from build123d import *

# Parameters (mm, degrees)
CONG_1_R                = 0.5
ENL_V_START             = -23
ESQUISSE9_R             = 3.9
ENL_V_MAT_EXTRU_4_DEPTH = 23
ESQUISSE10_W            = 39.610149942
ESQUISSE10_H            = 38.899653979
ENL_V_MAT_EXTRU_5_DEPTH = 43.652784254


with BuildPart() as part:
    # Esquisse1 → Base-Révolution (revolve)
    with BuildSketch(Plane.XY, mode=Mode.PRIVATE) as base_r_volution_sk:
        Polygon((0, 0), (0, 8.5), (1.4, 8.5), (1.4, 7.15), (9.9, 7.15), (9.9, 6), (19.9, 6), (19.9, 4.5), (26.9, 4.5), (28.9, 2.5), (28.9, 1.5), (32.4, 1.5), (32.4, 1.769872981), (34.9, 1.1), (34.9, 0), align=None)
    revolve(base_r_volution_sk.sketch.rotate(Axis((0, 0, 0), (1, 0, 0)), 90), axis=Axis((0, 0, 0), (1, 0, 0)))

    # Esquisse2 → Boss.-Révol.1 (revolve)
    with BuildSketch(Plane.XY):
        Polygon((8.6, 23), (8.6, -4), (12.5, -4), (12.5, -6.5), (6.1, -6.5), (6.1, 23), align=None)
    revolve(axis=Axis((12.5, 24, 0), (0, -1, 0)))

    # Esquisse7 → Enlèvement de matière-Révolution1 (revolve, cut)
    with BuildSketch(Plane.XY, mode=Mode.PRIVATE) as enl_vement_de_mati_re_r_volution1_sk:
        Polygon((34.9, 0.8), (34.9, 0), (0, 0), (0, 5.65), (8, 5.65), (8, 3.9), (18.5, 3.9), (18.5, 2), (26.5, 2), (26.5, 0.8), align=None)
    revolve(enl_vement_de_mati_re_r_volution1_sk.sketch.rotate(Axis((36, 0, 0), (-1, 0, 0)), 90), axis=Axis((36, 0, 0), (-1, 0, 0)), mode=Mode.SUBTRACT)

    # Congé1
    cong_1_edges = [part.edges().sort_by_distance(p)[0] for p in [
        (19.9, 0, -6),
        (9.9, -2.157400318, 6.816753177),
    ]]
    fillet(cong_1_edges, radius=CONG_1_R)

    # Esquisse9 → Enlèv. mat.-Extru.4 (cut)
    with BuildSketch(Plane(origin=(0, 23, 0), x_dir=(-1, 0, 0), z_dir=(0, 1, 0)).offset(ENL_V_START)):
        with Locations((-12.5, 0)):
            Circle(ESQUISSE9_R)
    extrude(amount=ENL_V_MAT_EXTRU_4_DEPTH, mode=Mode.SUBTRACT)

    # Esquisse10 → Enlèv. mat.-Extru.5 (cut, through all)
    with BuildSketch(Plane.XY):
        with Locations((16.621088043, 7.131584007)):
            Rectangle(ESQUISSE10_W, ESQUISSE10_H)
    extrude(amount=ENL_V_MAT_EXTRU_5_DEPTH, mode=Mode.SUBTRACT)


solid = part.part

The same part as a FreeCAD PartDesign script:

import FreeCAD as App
import Part
import Sketcher
Q = App.Units.Quantity


def edges_at(feature, points):
    """Names of the edges that pass closest to the given points."""
    edges = feature.Shape.Edges
    near = lambda p: min(range(len(edges)), key=lambda i: edges[i].distToShape(Part.Vertex(*p))[0])
    return sorted({f"Edge{near(p) + 1}" for p in points})


def add_polygon(sketch, points):
    """Adds a closed chain of lines whose ends are joined by coincident constraints."""
    first, n = sketch.GeometryCount, len(points)
    for a, b in zip(points, points[1:] + points[:1]):
        sketch.addGeometry(Part.LineSegment(App.Vector(*a, 0), App.Vector(*b, 0)), False)
    for i in range(n):
        sketch.addConstraint(Sketcher.Constraint("Coincident", first + i, 2, first + (i + 1) % n, 1))

doc = App.newDocument("Part")
body = doc.addObject("PartDesign::Body", "Body")

sketch1 = body.newObject("Sketcher::SketchObject", "Sketch")
sketch1.AttachmentSupport = (doc.getObject("XY_Plane"), [""])
sketch1.MapMode = "FlatFace"
add_polygon(sketch1, [(0, 8.5), (0, 0), (34.9, 0), (34.9, 1.1), (32.4, 1.77), (32.4, 1.5), (28.9, 1.5), (28.9, 2.5), (26.9, 4.5), (19.9, 4.5), (19.9, 6), (9.9, 6), (9.9, 7.15), (1.4, 7.15), (1.4, 8.5)])
sketch1.addConstraint([
    Sketcher.Constraint("Vertical", 0),
    Sketcher.Constraint("Horizontal", 1),
    Sketcher.Constraint("Vertical", 2),
    Sketcher.Constraint("Vertical", 4),
    Sketcher.Constraint("Horizontal", 5),
    Sketcher.Constraint("Vertical", 6),
    Sketcher.Constraint("Horizontal", 8),
    Sketcher.Constraint("Vertical", 9),
    Sketcher.Constraint("Horizontal", 10),
    Sketcher.Constraint("Vertical", 11),
    Sketcher.Constraint("Horizontal", 12),
    Sketcher.Constraint("Vertical", 13),
    Sketcher.Constraint("Horizontal", 14),
    Sketcher.Constraint("Coincident", 0, 2, -1, 1),
    Sketcher.Constraint("Equal", 12, 0),
    Sketcher.Constraint("DistanceX", 8, 2, 8, 1, 7.0),
    Sketcher.Constraint("DistanceX", 10, 2, 10, 1, 10.0),
    Sketcher.Constraint("DistanceY", 6, 1, 6, 2, 1.0),
    Sketcher.Constraint("Angle", 3, Q("165 deg")),
    Sketcher.Constraint("Angle", 7, Q("135 deg")),
    Sketcher.Constraint("DistanceX", 1, 1, 1, 2, 34.9),
    Sketcher.Constraint("DistanceX", 5, 2, 5, 1, 3.5),
    Sketcher.Constraint("DistanceX", 12, 2, 12, 1, 8.5),
    Sketcher.Constraint("DistanceX", 14, 2, 14, 1, 1.4),
    Sketcher.Constraint("DistanceY", 2, 1, 2, 2, 1.1),
    Sketcher.Constraint("DistanceY", 9, 1, 9, 2, 1.5),
    Sketcher.Constraint("DistanceY", -1, 1, 9, 2, 6.0),
    Sketcher.Constraint("DistanceX", 5, 2, 2, 2, 6.0),
    Sketcher.Constraint("DistanceY", 11, 1, 11, 2, 1.15),
])
revolution = body.newObject("PartDesign::Revolution", "Revolution")
revolution.Profile = sketch1
revolution.ReferenceAxis = (sketch1, ["H_Axis"])
revolution.Angle = 360

sketch2 = body.newObject("Sketcher::SketchObject", "Sketch001")
sketch2.AttachmentSupport = (doc.getObject("XY_Plane"), [""])
sketch2.MapMode = "FlatFace"
add_polygon(sketch2, [(8.6, -4), (8.6, 23), (6.1, 23), (6.1, -6.5), (12.5, -6.5), (12.5, -4)])
sketch2.addGeometry(Part.LineSegment(App.Vector(12.5, 23, 0), App.Vector(12.5, -6.5, 0)), True)
sketch2.addConstraint([
    Sketcher.Constraint("Vertical", 0),
    Sketcher.Constraint("Horizontal", 1),
    Sketcher.Constraint("Vertical", 2),
    Sketcher.Constraint("Horizontal", 3),
    Sketcher.Constraint("Vertical", 4),
    Sketcher.Constraint("Horizontal", 5),
    Sketcher.Constraint("Vertical", 6),
    Sketcher.Constraint("Coincident", 6, 2, 3, 2),
    Sketcher.Constraint("Horizontal", 1, 2, 6, 1),
    Sketcher.Constraint("Equal", 1, 4),
    Sketcher.Constraint("DistanceY", 0, 1, 0, 2, 27.0),
    Sketcher.Constraint("DistanceX", 1, 2, 1, 1, 2.5),
    Sketcher.Constraint("DistanceX", 3, 1, 3, 2, 6.4),
    Sketcher.Constraint("DistanceY", -1, 1, 0, 2, 23.0),
    Sketcher.Constraint("DistanceX", -1, 1, 0, 2, 8.6),
])
revolution2 = body.newObject("PartDesign::Revolution", "Revolution001")
revolution2.Profile = sketch2
revolution2.ReferenceAxis = (sketch2, ["Axis0"])
revolution2.Angle = 360

sketch3 = body.newObject("Sketcher::SketchObject", "Sketch002")
sketch3.AttachmentSupport = (doc.getObject("XY_Plane"), [""])
sketch3.MapMode = "FlatFace"
add_polygon(sketch3, [(34.9, 0), (34.9, 0.8), (26.5, 0.8), (26.5, 2), (18.5, 2), (18.5, 3.9), (8, 3.9), (8, 5.7), (0, 5.7), (0, 0)])
sketch3.addConstraint([
    Sketcher.Constraint("Vertical", 0),
    Sketcher.Constraint("Horizontal", 1),
    Sketcher.Constraint("Vertical", 2),
    Sketcher.Constraint("Horizontal", 3),
    Sketcher.Constraint("Vertical", 4),
    Sketcher.Constraint("Horizontal", 5),
    Sketcher.Constraint("Vertical", 6),
    Sketcher.Constraint("Horizontal", 7),
    Sketcher.Constraint("Vertical", 8),
    Sketcher.Constraint("Horizontal", 9),
    Sketcher.Constraint("Coincident", 8, 2, -1, 1),
    Sketcher.Constraint("Equal", 3, 7),
    Sketcher.Constraint("DistanceX", 3, 2, 3, 1, 8.0),
    Sketcher.Constraint("DistanceX", 1, 2, 1, 1, 8.4),
    Sketcher.Constraint("DistanceX", 5, 2, 5, 1, 10.5),
    Sketcher.Constraint("DistanceY", 0, 1, 0, 2, 0.8),
    Sketcher.Constraint("DistanceY", 2, 1, 2, 2, 1.2),
    Sketcher.Constraint("DistanceY", 4, 1, 4, 2, 1.9),
    Sketcher.Constraint("DistanceY", 6, 1, 6, 2, 1.75),
])
groove = body.newObject("PartDesign::Groove", "Groove")
groove.Profile = sketch3
groove.ReferenceAxis = (sketch3, ["H_Axis"])
groove.Angle = 360
doc.recompute()

fillet = body.newObject("PartDesign::Fillet", "Fillet")
fillet.Base = (groove, edges_at(groove, [(19.9, 0, -6), (9.9, -2.157, 6.817)]))
fillet.Radius = 0.5

sketch4 = body.newObject("Sketcher::SketchObject", "Sketch003")
sketch4.AttachmentSupport = (doc.getObject("XZ_Plane"), [""])
sketch4.MapMode = "FlatFace"
sketch4.addGeometry(Part.Circle(App.Vector(12.5, 0, 0), App.Vector(0, 0, 1), 3.9), False)
sketch4.addConstraint([
    Sketcher.Constraint("PointOnObject", 0, 3, -1),
    Sketcher.Constraint("Diameter", 0, 7.8),
    Sketcher.Constraint("DistanceX", -1, 1, 0, 3, 12.5),
])
pocket1 = body.newObject("PartDesign::Pocket", "Pocket")
pocket1.Profile = sketch4
pocket1.Length = 23

sketch5 = body.newObject("Sketcher::SketchObject", "Sketch004")
sketch5.AttachmentSupport = (doc.getObject("XY_Plane"), [""])
sketch5.MapMode = "FlatFace"
add_polygon(sketch5, [(-3, 27), (-3, -12), (36, -12), (36, 27)])
sketch5.addConstraint([
    Sketcher.Constraint("Vertical", 0),
    Sketcher.Constraint("Horizontal", 1),
    Sketcher.Constraint("Vertical", 2),
    Sketcher.Constraint("Horizontal", 3),
    Sketcher.Constraint("DistanceX", 1, 1, 1, 2, 39.61015),
    Sketcher.Constraint("DistanceY", 0, 2, 0, 1, 38.899654),
    Sketcher.Constraint("DistanceY", -1, 1, 2, 2, 26.581411),
    Sketcher.Constraint("DistanceX", 0, 2, -1, 1, 3.183987),
])
pocket2 = body.newObject("PartDesign::Pocket", "Pocket001")
pocket2.Profile = sketch5
pocket2.Type = "ThroughAll"
pocket2.Reversed = True

doc.recompute()
